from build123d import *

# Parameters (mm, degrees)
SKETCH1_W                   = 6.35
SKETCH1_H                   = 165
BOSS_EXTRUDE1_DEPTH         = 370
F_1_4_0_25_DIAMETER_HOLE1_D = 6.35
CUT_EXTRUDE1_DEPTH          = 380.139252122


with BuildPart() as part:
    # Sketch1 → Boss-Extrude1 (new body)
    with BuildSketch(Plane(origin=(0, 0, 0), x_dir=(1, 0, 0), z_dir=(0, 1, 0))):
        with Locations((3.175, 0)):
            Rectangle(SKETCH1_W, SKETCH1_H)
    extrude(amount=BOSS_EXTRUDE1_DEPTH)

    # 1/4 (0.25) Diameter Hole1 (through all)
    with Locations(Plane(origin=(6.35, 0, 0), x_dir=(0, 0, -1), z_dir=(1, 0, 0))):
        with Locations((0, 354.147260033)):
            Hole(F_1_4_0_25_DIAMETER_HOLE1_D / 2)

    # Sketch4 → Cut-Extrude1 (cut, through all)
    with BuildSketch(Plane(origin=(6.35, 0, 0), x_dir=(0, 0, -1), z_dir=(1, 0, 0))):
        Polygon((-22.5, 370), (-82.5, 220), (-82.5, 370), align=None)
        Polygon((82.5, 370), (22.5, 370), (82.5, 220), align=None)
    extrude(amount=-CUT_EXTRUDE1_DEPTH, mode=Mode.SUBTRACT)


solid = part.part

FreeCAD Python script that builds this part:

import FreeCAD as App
import Part
import Sketcher


def add_polygon(sketch, points):
    """Adds a closed chain of lines whose ends are joined by coincident constraints."""
    first, n = sketch.GeometryCount, len(points)
    for a, b in zip(points, points[1:] + points[:1]):
        sketch.addGeometry(Part.LineSegment(App.Vector(*a, 0), App.Vector(*b, 0)), False)
    for i in range(n):
        sketch.addConstraint(Sketcher.Constraint("Coincident", first + i, 2, first + (i + 1) % n, 1))

doc = App.newDocument("Part")
body = doc.addObject("PartDesign::Body", "Body")

sketch1 = body.newObject("Sketcher::SketchObject", "Sketch")
sketch1.AttachmentSupport = (doc.getObject("XZ_Plane"), [""])
sketch1.MapMode = "FlatFace"
add_polygon(sketch1, [(0, -82.5), (0, 82.5), (6.35, 82.5), (6.35, -82.5)])
sketch1.addConstraint([
    Sketcher.Constraint("Vertical", 0),
    Sketcher.Constraint("Horizontal", 1),
    Sketcher.Constraint("Vertical", 2),
    Sketcher.Constraint("Horizontal", 3),
    Sketcher.Constraint("Symmetric", 0, 2, 3, 2, -1, 1),
    Sketcher.Constraint("DistanceY", 0, 1, 0, 2, 165.0),
    Sketcher.Constraint("DistanceX", 1, 1, 1, 2, 6.35),
])
pad1 = body.newObject("PartDesign::Pad", "Pad")
pad1.Profile = sketch1
pad1.Length = 370
pad1.Reversed = True

sketch2 = body.newObject("Sketcher::SketchObject", "Sketch001")
sketch2.AttachmentSupport = (doc.getObject("YZ_Plane"), [""])
sketch2.MapMode = "FlatFace"
sketch2.AttachmentOffset = App.Placement(App.Vector(0, 0, 6.35), App.Rotation())
sketch2.addGeometry(Part.Circle(App.Vector(354.14726, 0, 0), App.Vector(0, 0, 1), 3.175), False)
sketch2.addConstraint([
    Sketcher.Constraint("PointOnObject", 0, 3, -1),
    Sketcher.Constraint("Diameter", 0, 6.35),
    Sketcher.Constraint("DistanceX", -1, 1, 0, 3, 354.14726),
])
doc.recompute()
hole = body.newObject("PartDesign::Hole", "Hole")
hole.Profile = sketch2
hole.ThreadType = "None"
hole.Diameter = 6.35
hole.DepthType = "ThroughAll"

sketch3 = body.newObject("Sketcher::SketchObject", "Sketch002")
sketch3.AttachmentSupport = (doc.getObject("YZ_Plane"), [""])
sketch3.MapMode = "FlatFace"
sketch3.AttachmentOffset = App.Placement(App.Vector(0, 0, 6.35), App.Rotation())
add_polygon(sketch3, [(220, 82.5), (370, 22.5), (370, 82.5)])
add_polygon(sketch3, [(370, -82.5), (370, -22.5), (220, -82.5)])
sketch3.addConstraint([
    Sketcher.Constraint("Vertical", 1),
    Sketcher.Constraint("Horizontal", 2),
    Sketcher.Constraint("Vertical", 3),
    Sketcher.Constraint("Horizontal", 5),
    Sketcher.Constraint("Symmetric", 0, 2, 3, 2, -1),
    Sketcher.Constraint("Symmetric", 2, 2, 4, 2, -1),
    Sketcher.Constraint("DistanceX", 2, 2, 2, 1, 150.0),
    Sketcher.Constraint("DistanceY", 1, 1, 1, 2, 60.0),
    Sketcher.Constraint("DistanceX", -1, 1, 0, 2, 370.0),
    Sketcher.Constraint("DistanceY", 3, 2, 0, 2, 45.0),
])
pocket1 = body.newObject("PartDesign::Pocket", "Pocket")
pocket1.Profile = sketch3
pocket1.Type = "ThroughAll"

doc.recompute()
